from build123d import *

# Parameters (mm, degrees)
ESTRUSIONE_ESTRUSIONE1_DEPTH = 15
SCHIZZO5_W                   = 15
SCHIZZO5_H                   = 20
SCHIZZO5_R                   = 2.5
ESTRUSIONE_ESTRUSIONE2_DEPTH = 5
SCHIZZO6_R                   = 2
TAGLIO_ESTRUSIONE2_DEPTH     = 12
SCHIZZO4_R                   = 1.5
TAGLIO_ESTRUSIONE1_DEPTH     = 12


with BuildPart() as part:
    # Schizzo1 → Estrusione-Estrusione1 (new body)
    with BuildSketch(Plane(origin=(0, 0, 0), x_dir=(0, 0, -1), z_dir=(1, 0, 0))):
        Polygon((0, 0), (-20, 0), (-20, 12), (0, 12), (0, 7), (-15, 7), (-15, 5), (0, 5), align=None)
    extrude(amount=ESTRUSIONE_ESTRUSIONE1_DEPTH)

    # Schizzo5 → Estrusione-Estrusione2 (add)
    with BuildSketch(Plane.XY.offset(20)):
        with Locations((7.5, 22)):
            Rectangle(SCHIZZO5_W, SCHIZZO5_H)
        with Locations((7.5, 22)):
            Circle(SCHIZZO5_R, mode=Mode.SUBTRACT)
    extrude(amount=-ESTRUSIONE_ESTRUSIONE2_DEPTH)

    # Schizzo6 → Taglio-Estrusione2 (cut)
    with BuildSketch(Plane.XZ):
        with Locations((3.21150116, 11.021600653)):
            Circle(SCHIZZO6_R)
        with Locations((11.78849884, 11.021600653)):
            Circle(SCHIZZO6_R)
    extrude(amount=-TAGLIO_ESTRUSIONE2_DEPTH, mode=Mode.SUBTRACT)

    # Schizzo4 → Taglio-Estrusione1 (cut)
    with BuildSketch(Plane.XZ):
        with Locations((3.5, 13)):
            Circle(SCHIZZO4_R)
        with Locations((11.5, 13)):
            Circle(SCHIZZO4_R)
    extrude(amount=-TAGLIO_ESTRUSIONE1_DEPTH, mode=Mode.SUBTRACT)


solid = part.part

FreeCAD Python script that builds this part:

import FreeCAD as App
import Part
import Sketcher
from FreeCAD import Vector


def add_polygon(sketch, points):
    """Adds a closed chain of lines whose ends are joined by coincident constraints."""
    first, n = sketch.GeometryCount, len(points)
    for a, b in zip(points, points[1:] + points[:1]):
        sketch.addGeometry(Part.LineSegment(App.Vector(*a, 0), App.Vector(*b, 0)), False)
    for i in range(n):
        sketch.addConstraint(Sketcher.Constraint("Coincident", first + i, 2, first + (i + 1) % n, 1))

doc = App.newDocument("Part")
body = doc.addObject("PartDesign::Body", "Body")

sketch1 = body.newObject("Sketcher::SketchObject", "Sketch")
sketch1.AttachmentSupport = (doc.getObject("YZ_Plane"), [""])
sketch1.MapMode = "FlatFace"
add_polygon(sketch1, [(0, 20), (0, 0), (5, 0), (5, 15), (7, 15), (7, 0), (12, 0), (12, 20)])
sketch1.addConstraint(Sketcher.Constraint("Vertical", 0))
sketch1.addConstraint(Sketcher.Constraint("Horizontal", 1))
sketch1.addConstraint(Sketcher.Constraint("Vertical", 2))
sketch1.addConstraint(Sketcher.Constraint("Horizontal", 3))
sketch1.addConstraint(Sketcher.Constraint("Vertical", 4))
sketch1.addConstraint(Sketcher.Constraint("Horizontal", 5))
sketch1.addConstraint(Sketcher.Constraint("Vertical", 6))
sketch1.addConstraint(Sketcher.Constraint("Horizontal", 7))
sketch1.addConstraint(Sketcher.Constraint("Coincident", 0, 2, -1, 1))
sketch1.addConstraint(Sketcher.Constraint("PointOnObject", 4, 2, -1))
sketch1.addConstraint(Sketcher.Constraint("Equal", 1, 5))
sketch1.addConstraint(Sketcher.Constraint("DistanceX", 1, 1, 1, 2, 5.0))
sketch1.addConstraint(Sketcher.Constraint("DistanceX", 3, 1, 3, 2, 2.0))
sketch1.addConstraint(Sketcher.Constraint("DistanceY", 0, 2, 0, 1, 20.0))
sketch1.addConstraint(Sketcher.Constraint("DistanceY", 2, 1, 2, 2, 15.0))
pad1 = body.newObject("PartDesign::Pad", "Pad")
pad1.Profile = sketch1
pad1.Length = 15

sketch2 = body.newObject("Sketcher::SketchObject", "Sketch001")
sketch2.AttachmentSupport = (doc.getObject("XY_Plane"), [""])
sketch2.MapMode = "FlatFace"
sketch2.AttachmentOffset = App.Placement(Vector(0, 0, 20), App.Rotation())
add_polygon(sketch2, [(0, 32), (0, 12), (15, 12), (15, 32)])
sketch2.addGeometry(Part.Circle(Vector(7.5, 22, 0), Vector(0, 0, 1), 2.5), False)
sketch2.addConstraint(Sketcher.Constraint("Vertical", 0))
sketch2.addConstraint(Sketcher.Constraint("Horizontal", 1))
sketch2.addConstraint(Sketcher.Constraint("Vertical", 2))
sketch2.addConstraint(Sketcher.Constraint("Horizontal", 3))
sketch2.addConstraint(Sketcher.Constraint("PointOnObject", 0, 2, -2))
sketch2.addConstraint(Sketcher.Constraint("Diameter", 4, 5.0))
sketch2.addConstraint(Sketcher.Constraint("DistanceX", 1, 1, 1, 2, 15.0))
sketch2.addConstraint(Sketcher.Constraint("DistanceY", 0, 2, 0, 1, 20.0))
sketch2.addConstraint(Sketcher.Constraint("DistanceY", -1, 1, 4, 3, 22.0))
sketch2.addConstraint(Sketcher.Constraint("DistanceY", -1, 1, 0, 2, 12.0))
sketch2.addConstraint(Sketcher.Constraint("DistanceX", -1, 1, 4, 3, 7.5))
pad2 = body.newObject("PartDesign::Pad", "Pad001")
pad2.Profile = sketch2
pad2.Length = 5
pad2.Reversed = True

sketch3 = body.newObject("Sketcher::SketchObject", "Sketch002")
sketch3.AttachmentSupport = (doc.getObject("XZ_Plane"), [""])
sketch3.MapMode = "FlatFace"
sketch3.addGeometry(Part.Circle(Vector(3.2, 11, 0), Vector(0, 0, 1), 2), False)
sketch3.addGeometry(Part.Circle(Vector(11.8, 11, 0), Vector(0, 0, 1), 2), False)
sketch3.addConstraint(Sketcher.Constraint("Equal", 0, 1))
sketch3.addConstraint(Sketcher.Constraint("Horizontal", 0, 3, 1, 3))
sketch3.addConstraint(Sketcher.Constraint("Diameter", 0, 4.0))
sketch3.addConstraint(Sketcher.Constraint("DistanceX", -1, 1, 0, 3, 3.211501))
sketch3.addConstraint(Sketcher.Constraint("DistanceY", -1, 1, 0, 3, 11.021601))
sketch3.addConstraint(Sketcher.Constraint("DistanceX", -1, 1, 1, 3, 11.788499))
pocket1 = body.newObject("PartDesign::Pocket", "Pocket")
pocket1.Profile = sketch3
pocket1.Length = 12

sketch4 = body.newObject("Sketcher::SketchObject", "Sketch003")
sketch4.AttachmentSupport = (doc.getObject("XZ_Plane"), [""])
sketch4.MapMode = "FlatFace"
sketch4.addGeometry(Part.Circle(Vector(3.5, 13, 0), Vector(0, 0, 1), 1.5), False)
sketch4.addGeometry(Part.Circle(Vector(11.5, 13, 0), Vector(0, 0, 1), 1.5), False)
sketch4.addConstraint(Sketcher.Constraint("Equal", 0, 1))
sketch4.addConstraint(Sketcher.Constraint("Horizontal", 0, 3, 1, 3))
sketch4.addConstraint(Sketcher.Constraint("Diameter", 0, 3.0))
sketch4.addConstraint(Sketcher.Constraint("DistanceY", -1, 1, 0, 3, 13.0))
sketch4.addConstraint(Sketcher.Constraint("DistanceX", 0, 3, 1, 3, 8.0))
sketch4.addConstraint(Sketcher.Constraint("DistanceX", -1, 1, 0, 3, 3.5))
pocket2 = body.newObject("PartDesign::Pocket", "Pocket001")
pocket2.Profile = sketch4
pocket2.Length = 12

doc.recompute()
